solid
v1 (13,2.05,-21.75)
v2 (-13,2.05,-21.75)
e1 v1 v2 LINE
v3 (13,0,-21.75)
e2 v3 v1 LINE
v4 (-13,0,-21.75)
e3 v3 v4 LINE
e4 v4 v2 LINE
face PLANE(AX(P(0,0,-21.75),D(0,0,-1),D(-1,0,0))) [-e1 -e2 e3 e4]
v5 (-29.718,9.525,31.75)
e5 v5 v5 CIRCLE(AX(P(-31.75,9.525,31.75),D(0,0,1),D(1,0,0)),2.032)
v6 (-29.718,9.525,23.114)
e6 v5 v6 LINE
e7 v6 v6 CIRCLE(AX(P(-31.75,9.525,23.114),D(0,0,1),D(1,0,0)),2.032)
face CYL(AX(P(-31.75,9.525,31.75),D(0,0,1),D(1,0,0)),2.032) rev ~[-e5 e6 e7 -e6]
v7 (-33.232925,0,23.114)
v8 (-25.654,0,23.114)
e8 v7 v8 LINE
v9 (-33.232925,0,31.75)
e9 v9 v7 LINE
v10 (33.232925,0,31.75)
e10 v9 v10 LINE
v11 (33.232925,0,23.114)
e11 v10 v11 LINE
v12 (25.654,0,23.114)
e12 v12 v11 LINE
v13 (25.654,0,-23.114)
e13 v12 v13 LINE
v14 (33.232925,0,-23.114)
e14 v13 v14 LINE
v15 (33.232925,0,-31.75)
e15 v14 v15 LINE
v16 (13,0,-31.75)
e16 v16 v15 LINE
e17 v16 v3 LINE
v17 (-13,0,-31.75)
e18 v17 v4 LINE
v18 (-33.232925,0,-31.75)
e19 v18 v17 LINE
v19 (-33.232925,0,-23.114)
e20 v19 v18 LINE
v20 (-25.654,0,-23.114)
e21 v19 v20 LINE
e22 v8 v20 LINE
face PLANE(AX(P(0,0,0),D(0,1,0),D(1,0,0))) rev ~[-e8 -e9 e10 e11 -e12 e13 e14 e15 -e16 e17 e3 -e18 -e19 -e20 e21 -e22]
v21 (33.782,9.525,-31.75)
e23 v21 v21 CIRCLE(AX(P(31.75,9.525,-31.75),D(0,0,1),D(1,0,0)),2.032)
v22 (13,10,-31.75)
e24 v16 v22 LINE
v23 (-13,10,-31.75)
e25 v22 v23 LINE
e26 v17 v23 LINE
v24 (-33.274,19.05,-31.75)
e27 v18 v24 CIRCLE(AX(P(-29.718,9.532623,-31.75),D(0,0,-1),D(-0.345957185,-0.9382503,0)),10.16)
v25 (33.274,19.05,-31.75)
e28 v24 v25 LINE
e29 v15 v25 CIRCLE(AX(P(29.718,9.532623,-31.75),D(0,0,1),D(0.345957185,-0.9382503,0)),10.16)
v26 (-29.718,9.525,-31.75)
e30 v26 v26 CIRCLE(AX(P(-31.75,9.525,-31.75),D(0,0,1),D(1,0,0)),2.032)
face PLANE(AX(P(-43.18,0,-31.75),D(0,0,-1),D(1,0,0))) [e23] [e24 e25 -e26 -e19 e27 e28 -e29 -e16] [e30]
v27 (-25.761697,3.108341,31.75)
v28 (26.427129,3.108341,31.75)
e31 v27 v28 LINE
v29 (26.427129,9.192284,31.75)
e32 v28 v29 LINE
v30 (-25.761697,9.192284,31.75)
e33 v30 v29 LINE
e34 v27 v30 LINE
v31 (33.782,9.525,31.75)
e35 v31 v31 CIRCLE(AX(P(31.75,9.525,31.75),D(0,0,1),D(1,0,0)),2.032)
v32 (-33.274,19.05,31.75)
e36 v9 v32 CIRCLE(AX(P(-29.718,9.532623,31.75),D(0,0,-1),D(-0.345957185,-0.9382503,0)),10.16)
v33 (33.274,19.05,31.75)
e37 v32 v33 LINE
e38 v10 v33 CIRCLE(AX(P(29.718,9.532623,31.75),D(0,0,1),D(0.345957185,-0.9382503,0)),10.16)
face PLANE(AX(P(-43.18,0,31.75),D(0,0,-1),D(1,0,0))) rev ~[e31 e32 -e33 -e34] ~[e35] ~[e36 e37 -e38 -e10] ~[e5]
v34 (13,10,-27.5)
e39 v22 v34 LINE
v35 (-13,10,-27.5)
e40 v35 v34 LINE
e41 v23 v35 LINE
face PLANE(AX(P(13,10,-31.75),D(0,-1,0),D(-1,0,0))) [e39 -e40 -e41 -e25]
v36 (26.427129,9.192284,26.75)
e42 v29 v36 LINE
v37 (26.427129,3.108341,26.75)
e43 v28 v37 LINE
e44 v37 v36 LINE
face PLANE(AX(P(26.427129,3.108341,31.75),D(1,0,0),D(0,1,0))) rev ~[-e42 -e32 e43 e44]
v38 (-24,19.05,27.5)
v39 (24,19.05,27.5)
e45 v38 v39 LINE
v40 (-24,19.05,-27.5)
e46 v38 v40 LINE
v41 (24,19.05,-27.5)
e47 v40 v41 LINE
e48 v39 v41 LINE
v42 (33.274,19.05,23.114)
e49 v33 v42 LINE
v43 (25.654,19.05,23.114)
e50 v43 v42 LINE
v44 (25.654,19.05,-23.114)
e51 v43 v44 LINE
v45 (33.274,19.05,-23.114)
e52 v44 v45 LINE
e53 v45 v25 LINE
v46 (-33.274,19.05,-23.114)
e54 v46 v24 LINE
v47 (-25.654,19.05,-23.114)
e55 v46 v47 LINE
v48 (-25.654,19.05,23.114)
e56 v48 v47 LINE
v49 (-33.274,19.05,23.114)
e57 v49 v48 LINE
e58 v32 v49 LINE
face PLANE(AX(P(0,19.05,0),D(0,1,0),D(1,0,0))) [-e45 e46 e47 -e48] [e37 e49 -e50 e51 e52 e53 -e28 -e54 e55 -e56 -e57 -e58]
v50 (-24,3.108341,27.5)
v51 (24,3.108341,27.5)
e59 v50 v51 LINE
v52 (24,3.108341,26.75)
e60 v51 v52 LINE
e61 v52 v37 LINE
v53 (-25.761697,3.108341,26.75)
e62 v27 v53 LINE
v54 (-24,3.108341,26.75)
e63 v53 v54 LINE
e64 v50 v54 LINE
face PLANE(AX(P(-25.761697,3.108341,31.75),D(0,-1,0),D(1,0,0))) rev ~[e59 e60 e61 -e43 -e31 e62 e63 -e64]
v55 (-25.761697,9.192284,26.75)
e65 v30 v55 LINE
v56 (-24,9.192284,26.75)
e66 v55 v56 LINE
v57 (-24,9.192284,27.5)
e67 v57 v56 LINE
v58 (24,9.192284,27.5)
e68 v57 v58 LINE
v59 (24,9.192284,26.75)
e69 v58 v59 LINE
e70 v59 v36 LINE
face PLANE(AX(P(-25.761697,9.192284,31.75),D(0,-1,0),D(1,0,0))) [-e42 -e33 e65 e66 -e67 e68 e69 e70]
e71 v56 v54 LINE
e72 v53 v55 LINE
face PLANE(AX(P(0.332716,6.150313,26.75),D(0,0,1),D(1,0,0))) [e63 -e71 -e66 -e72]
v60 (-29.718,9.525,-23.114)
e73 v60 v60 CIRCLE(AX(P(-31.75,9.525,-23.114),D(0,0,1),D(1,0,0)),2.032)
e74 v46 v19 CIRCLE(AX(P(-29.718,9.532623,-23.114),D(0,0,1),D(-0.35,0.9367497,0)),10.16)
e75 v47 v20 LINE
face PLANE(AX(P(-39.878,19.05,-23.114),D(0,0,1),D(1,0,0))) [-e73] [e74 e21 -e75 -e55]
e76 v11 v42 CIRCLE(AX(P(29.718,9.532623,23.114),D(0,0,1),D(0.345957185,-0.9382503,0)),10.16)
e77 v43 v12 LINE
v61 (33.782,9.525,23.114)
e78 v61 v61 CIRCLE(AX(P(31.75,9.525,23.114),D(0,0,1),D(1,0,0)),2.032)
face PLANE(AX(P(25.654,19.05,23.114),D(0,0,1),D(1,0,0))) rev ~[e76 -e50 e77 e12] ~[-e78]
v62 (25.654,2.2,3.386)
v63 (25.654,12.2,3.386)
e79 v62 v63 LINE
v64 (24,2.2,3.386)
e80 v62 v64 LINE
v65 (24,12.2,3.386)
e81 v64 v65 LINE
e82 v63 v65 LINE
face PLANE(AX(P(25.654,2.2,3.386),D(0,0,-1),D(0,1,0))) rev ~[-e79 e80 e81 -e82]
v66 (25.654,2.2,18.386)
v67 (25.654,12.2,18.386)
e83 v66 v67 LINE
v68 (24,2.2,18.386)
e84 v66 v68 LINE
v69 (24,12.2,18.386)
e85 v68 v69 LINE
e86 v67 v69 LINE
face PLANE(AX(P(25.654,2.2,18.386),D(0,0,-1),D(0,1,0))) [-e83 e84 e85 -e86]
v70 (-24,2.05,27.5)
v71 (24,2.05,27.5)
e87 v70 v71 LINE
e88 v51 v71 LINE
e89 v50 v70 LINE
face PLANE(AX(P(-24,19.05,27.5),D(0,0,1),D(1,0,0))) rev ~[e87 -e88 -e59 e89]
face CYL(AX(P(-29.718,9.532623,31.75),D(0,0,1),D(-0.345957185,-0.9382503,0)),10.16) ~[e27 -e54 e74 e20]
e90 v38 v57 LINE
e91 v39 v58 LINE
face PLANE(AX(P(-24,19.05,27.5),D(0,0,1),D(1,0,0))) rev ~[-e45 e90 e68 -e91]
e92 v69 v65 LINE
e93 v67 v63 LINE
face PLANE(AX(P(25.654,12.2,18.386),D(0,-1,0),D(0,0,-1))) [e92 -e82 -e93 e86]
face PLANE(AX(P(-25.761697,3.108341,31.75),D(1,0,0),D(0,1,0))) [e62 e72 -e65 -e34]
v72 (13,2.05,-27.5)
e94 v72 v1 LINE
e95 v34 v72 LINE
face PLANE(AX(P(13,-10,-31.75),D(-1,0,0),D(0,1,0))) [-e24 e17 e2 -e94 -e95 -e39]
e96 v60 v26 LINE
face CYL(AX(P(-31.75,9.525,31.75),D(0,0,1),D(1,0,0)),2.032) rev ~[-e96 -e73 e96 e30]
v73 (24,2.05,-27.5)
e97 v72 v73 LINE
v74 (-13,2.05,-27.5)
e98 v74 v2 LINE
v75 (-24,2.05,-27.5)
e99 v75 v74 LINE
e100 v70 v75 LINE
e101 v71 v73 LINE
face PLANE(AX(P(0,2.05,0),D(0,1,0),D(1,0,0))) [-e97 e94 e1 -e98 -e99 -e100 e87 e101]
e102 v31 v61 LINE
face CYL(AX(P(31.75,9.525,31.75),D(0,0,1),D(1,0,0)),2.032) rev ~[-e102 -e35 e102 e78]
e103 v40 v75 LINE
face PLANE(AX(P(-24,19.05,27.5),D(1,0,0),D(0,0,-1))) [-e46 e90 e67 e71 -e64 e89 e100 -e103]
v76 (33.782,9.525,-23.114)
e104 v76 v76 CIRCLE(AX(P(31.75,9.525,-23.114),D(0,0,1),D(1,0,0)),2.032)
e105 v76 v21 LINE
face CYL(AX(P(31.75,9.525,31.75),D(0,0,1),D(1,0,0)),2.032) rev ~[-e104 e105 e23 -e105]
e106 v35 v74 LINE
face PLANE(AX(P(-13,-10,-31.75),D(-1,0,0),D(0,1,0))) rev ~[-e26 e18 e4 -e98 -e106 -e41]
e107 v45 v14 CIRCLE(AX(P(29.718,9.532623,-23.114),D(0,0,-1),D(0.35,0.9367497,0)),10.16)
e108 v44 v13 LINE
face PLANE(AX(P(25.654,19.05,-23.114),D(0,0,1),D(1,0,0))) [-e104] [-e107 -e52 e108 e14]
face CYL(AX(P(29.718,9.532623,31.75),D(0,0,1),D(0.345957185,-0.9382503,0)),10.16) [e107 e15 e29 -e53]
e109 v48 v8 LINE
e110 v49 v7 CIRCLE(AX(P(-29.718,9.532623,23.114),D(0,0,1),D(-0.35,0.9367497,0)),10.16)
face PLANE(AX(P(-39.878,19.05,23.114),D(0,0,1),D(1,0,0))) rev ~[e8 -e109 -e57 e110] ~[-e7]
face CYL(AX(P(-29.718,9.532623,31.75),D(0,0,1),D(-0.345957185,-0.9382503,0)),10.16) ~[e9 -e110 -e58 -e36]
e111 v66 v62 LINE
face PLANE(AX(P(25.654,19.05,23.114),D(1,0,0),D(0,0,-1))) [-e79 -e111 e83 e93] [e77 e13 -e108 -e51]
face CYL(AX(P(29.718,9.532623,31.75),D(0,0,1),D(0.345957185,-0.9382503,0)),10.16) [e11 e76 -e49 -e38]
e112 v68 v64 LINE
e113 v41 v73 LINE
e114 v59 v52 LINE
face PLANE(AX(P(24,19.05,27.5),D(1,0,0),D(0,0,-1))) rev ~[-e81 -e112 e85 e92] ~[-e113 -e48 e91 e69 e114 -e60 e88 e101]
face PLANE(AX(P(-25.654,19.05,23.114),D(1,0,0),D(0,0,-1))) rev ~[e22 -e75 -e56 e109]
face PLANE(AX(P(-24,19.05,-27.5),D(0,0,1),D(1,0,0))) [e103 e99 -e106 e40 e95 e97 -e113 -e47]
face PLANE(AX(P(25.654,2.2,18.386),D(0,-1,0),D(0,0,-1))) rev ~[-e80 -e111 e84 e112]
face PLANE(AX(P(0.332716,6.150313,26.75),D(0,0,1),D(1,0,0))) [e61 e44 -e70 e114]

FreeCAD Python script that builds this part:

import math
import FreeCAD as App
import Part
import Sketcher
Q = App.Units.Quantity

doc = App.newDocument("Part")
body = doc.addObject("PartDesign::Body", "Body")

# Sketch on XZ plane
sketch1 = body.newObject("Sketcher::SketchObject", "Sketch")
sketch1.AttachmentSupport = (doc.getObject("XZ_Plane"), [""])
sketch1.MapMode = "FlatFace"
sketch1.addGeometry([
    Part.LineSegment(App.Vector(-43.18, -31.75, 0), App.Vector(-43.18, 31.75, 0)),
    Part.LineSegment(App.Vector(-43.18, 31.75, 0), App.Vector(43.18, 31.75, 0)),
    Part.LineSegment(App.Vector(43.18, 31.75, 0), App.Vector(43.18, -31.75, 0)),
    Part.LineSegment(App.Vector(43.18, -31.75, 0), App.Vector(-43.18, -31.75, 0)),
], False)
sketch1.addConstraint([
    Sketcher.Constraint("Coincident", 0, 2, 1, 1),
    Sketcher.Constraint("Coincident", 1, 2, 2, 1),
    Sketcher.Constraint("Coincident", 2, 2, 3, 1),
    Sketcher.Constraint("Coincident", 3, 2, 0, 1),
    Sketcher.Constraint("Vertical", 0),
    Sketcher.Constraint("Horizontal", 1),
    Sketcher.Constraint("Vertical", 2),
    Sketcher.Constraint("Horizontal", 3),
    Sketcher.Constraint("Symmetric", 0, 2, 2, 2, -1, 1),
    Sketcher.Constraint("DistanceY", 0, 1, 0, 2, Q("63.5 mm")),
    Sketcher.Constraint("DistanceX", 1, 1, 1, 2, Q("86.36 mm")),
])
pad1 = body.newObject("PartDesign::Pad", "Pad")
pad1.Profile = sketch1
pad1.Length = 19.05
pad1.Reversed = True

# Sketch on XY plane
sketch2 = body.newObject("Sketcher::SketchObject", "Sketch001")
sketch2.AttachmentSupport = (doc.getObject("XY_Plane"), [""])
sketch2.MapMode = "FlatFace"
sketch2.AttachmentOffset = App.Placement(App.Vector(0, 0, 31.75), App.Rotation())
sketch2.addGeometry([
    Part.LineSegment(App.Vector(-43.18, 19.05, 0), App.Vector(-43.18, 0, 0)),  # 0
    Part.LineSegment(App.Vector(-43.18, 0, 0), App.Vector(-33.232925, 0, 0)),  # 1
    Part.ArcOfCircle(Part.Circle(App.Vector(-29.718, 9.532623, 0), App.Vector(0, 0, 1), 10.16), math.radians(110.487315), math.radians(249.759763)),  # 2
    Part.LineSegment(App.Vector(-33.274, 19.05, 0), App.Vector(-43.18, 19.05, 0)),  # 3
    Part.LineSegment(App.Vector(43.18, 0, 0), App.Vector(43.18, 19.05, 0)),  # 4
    Part.LineSegment(App.Vector(43.18, 19.05, 0), App.Vector(33.274, 19.05, 0)),  # 5
    Part.ArcOfCircle(Part.Circle(App.Vector(29.718, 9.532623, 0), App.Vector(0, 0, 1), 10.16), math.radians(-69.759763), math.radians(69.512685)),  # 6
    Part.LineSegment(App.Vector(33.232925, 0, 0), App.Vector(43.18, 0, 0)),  # 7
], False)
sketch2.addConstraint([
    Sketcher.Constraint("Coincident", 0, 2, 1, 1),
    Sketcher.Constraint("Coincident", 1, 2, 2, 2),
    Sketcher.Constraint("Coincident", 2, 1, 3, 1),
    Sketcher.Constraint("Coincident", 3, 2, 0, 1),
    Sketcher.Constraint("Coincident", 4, 2, 5, 1),
    Sketcher.Constraint("Coincident", 5, 2, 6, 2),
    Sketcher.Constraint("Coincident", 6, 1, 7, 1),
    Sketcher.Constraint("Coincident", 7, 2, 4, 1),
    Sketcher.Constraint("Vertical", 0),
    Sketcher.Constraint("Horizontal", 1),
    Sketcher.Constraint("Horizontal", 3),
    Sketcher.Constraint("Vertical", 4),
    Sketcher.Constraint("Horizontal", 5),
    Sketcher.Constraint("Horizontal", 7),
    Sketcher.Constraint("Equal", 2, 6),
    Sketcher.Constraint("Symmetric", 1, 2, 6, 1, -1, 1),
    Sketcher.Constraint("Symmetric", 2, 3, 6, 3, -2),
    Sketcher.Constraint("Symmetric", 3, 2, 4, 2, -2),
    Sketcher.Constraint("Radius", 2, Q("10.16 mm")),
    Sketcher.Constraint("DistanceY", 0, 2, 0, 1, Q("19.05 mm")),
    Sketcher.Constraint("DistanceX", 3, 2, 3, 1, Q("9.906 mm")),
    Sketcher.Constraint("DistanceX", 0, 2, -1, 1, Q("43.18 mm")),
    Sketcher.Constraint("DistanceX", 2, 3, -1, 1, Q("29.718 mm")),
])
pocket1 = body.newObject("PartDesign::Pocket", "Pocket")
pocket1.Profile = sketch2
pocket1.Length = 63.5

# Sketch on XZ plane
sketch3 = body.newObject("Sketcher::SketchObject", "Sketch002")
sketch3.AttachmentSupport = (doc.getObject("XZ_Plane"), [""])
sketch3.MapMode = "FlatFace"
sketch3.AttachmentOffset = App.Placement(App.Vector(0, 0, -19.05), App.Rotation())
sketch3.addGeometry([
    Part.LineSegment(App.Vector(-39.878, -23.114, 0), App.Vector(-39.878, 23.114, 0)),  # 0
    Part.LineSegment(App.Vector(-39.878, 23.114, 0), App.Vector(-25.654, 23.114, 0)),  # 1
    Part.LineSegment(App.Vector(-25.654, 23.114, 0), App.Vector(-25.654, -23.114, 0)),  # 2
    Part.LineSegment(App.Vector(-25.654, -23.114, 0), App.Vector(-39.878, -23.114, 0)),  # 3
    Part.LineSegment(App.Vector(25.654, -23.114, 0), App.Vector(25.654, 23.114, 0)),  # 4
    Part.LineSegment(App.Vector(25.654, 23.114, 0), App.Vector(39.878, 23.114, 0)),  # 5
    Part.LineSegment(App.Vector(39.878, 23.114, 0), App.Vector(39.878, -23.114, 0)),  # 6
    Part.LineSegment(App.Vector(39.878, -23.114, 0), App.Vector(25.654, -23.114, 0)),  # 7
], False)
sketch3.addConstraint([
    Sketcher.Constraint("Coincident", 0, 2, 1, 1),
    Sketcher.Constraint("Coincident", 1, 2, 2, 1),
    Sketcher.Constraint("Coincident", 2, 2, 3, 1),
    Sketcher.Constraint("Coincident", 3, 2, 0, 1),
    Sketcher.Constraint("Coincident", 4, 2, 5, 1),
    Sketcher.Constraint("Coincident", 5, 2, 6, 1),
    Sketcher.Constraint("Coincident", 6, 2, 7, 1),
    Sketcher.Constraint("Coincident", 7, 2, 4, 1),
    Sketcher.Constraint("Vertical", 0),
    Sketcher.Constraint("Horizontal", 1),
    Sketcher.Constraint("Vertical", 2),
    Sketcher.Constraint("Horizontal", 3),
    Sketcher.Constraint("Vertical", 4),
    Sketcher.Constraint("Horizontal", 5),
    Sketcher.Constraint("Vertical", 6),
    Sketcher.Constraint("Horizontal", 7),
    Sketcher.Constraint("Symmetric", 2, 2, 4, 2, -1, 1),
    Sketcher.Constraint("Symmetric", 0, 2, 6, 2, -1, 1),
    Sketcher.Constraint("Horizontal", 1, 2, 4, 2),
    Sketcher.Constraint("DistanceX", 1, 1, 1, 2, Q("14.224 mm")),
    Sketcher.Constraint("DistanceY", 0, 1, 0, 2, Q("46.228 mm")),
    Sketcher.Constraint("DistanceX", 0, 2, -1, 1, Q("39.878 mm")),
])
pocket2 = body.newObject("PartDesign::Pocket", "Pocket001")
pocket2.Profile = sketch3
pocket2.Length = 63.5
pocket2.Reversed = True

# Sketch on XY plane
sketch4 = body.newObject("Sketcher::SketchObject", "Sketch003")
sketch4.AttachmentSupport = (doc.getObject("XY_Plane"), [""])
sketch4.MapMode = "FlatFace"
sketch4.AttachmentOffset = App.Placement(App.Vector(0, 0, 31.75), App.Rotation())
sketch4.addGeometry([
    Part.Circle(App.Vector(-31.75, 9.525, 0), App.Vector(0, 0, 1), 2.032),
    Part.Circle(App.Vector(31.75, 9.525, 0), App.Vector(0, 0, 1), 2.032),
], False)
sketch4.addConstraint([
    Sketcher.Constraint("Equal", 0, 1),
    Sketcher.Constraint("Symmetric", 0, 3, 1, 3, -2),
    Sketcher.Constraint("Diameter", 0, Q("4.064 mm")),
    Sketcher.Constraint("DistanceX", 0, 3, 1, 3, Q("63.5 mm")),
    Sketcher.Constraint("DistanceY", -1, 1, 0, 3, Q("9.525 mm")),
])
pocket3 = body.newObject("PartDesign::Pocket", "Pocket002")
pocket3.Profile = sketch4
pocket3.Length = 63.5

# Sketch on XZ plane
sketch5 = body.newObject("Sketcher::SketchObject", "Sketch004")
sketch5.AttachmentSupport = (doc.getObject("XZ_Plane"), [""])
sketch5.MapMode = "FlatFace"
sketch5.AttachmentOffset = App.Placement(App.Vector(0, 0, -19.05), App.Rotation())
sketch5.addGeometry([
    Part.LineSegment(App.Vector(-24, -27.5, 0), App.Vector(-24, 27.5, 0)),
    Part.LineSegment(App.Vector(-24, 27.5, 0), App.Vector(24, 27.5, 0)),
    Part.LineSegment(App.Vector(24, 27.5, 0), App.Vector(24, -27.5, 0)),
    Part.LineSegment(App.Vector(24, -27.5, 0), App.Vector(-24, -27.5, 0)),
], False)
sketch5.addConstraint([
    Sketcher.Constraint("Coincident", 0, 2, 1, 1),
    Sketcher.Constraint("Coincident", 1, 2, 2, 1),
    Sketcher.Constraint("Coincident", 2, 2, 3, 1),
    Sketcher.Constraint("Coincident", 3, 2, 0, 1),
    Sketcher.Constraint("Vertical", 0),
    Sketcher.Constraint("Horizontal", 1),
    Sketcher.Constraint("Vertical", 2),
    Sketcher.Constraint("Horizontal", 3),
    Sketcher.Constraint("Symmetric", 0, 2, 2, 2, -1, 1),
    Sketcher.Constraint("DistanceX", 1, 1, 1, 2, Q("48 mm")),
    Sketcher.Constraint("DistanceY", 0, 1, 0, 2, Q("55 mm")),
])
pocket4 = body.newObject("PartDesign::Pocket", "Pocket003")
pocket4.Profile = sketch5
pocket4.Length = 17
pocket4.Reversed = True

# Sketch on YZ plane
sketch6 = body.newObject("Sketcher::SketchObject", "Sketch005")
sketch6.AttachmentSupport = (doc.getObject("YZ_Plane"), [""])
sketch6.MapMode = "FlatFace"
sketch6.AttachmentOffset = App.Placement(App.Vector(0, 0, 25.654), App.Rotation())
sketch6.addGeometry([
    Part.LineSegment(App.Vector(12.2, 18.386, 0), App.Vector(2.2, 18.386, 0)),
    Part.LineSegment(App.Vector(2.2, 18.386, 0), App.Vector(2.2, 3.386, 0)),
    Part.LineSegment(App.Vector(2.2, 3.386, 0), App.Vector(12.2, 3.386, 0)),
    Part.LineSegment(App.Vector(12.2, 3.386, 0), App.Vector(12.2, 18.386, 0)),
], False)
sketch6.addConstraint([
    Sketcher.Constraint("Coincident", 0, 2, 1, 1),
    Sketcher.Constraint("Coincident", 1, 2, 2, 1),
    Sketcher.Constraint("Coincident", 2, 2, 3, 1),
    Sketcher.Constraint("Coincident", 3, 2, 0, 1),
    Sketcher.Constraint("Horizontal", 0),
    Sketcher.Constraint("Vertical", 1),
    Sketcher.Constraint("Horizontal", 2),
    Sketcher.Constraint("Vertical", 3),
    Sketcher.Constraint("DistanceX", 0, 2, 0, 1, Q("10 mm")),
    Sketcher.Constraint("DistanceY", 1, 2, 1, 1, Q("15 mm")),
    Sketcher.Constraint("DistanceX", -1, 1, 0, 2, Q("2.2 mm")),
    Sketcher.Constraint("DistanceY", -1, 1, 0, 2, Q("18.386 mm")),
])
pocket5 = body.newObject("PartDesign::Pocket", "Pocket004")
pocket5.Profile = sketch6
pocket5.Length = 17

# Sketch on XY plane
sketch7 = body.newObject("Sketcher::SketchObject", "Sketch006")
sketch7.AttachmentSupport = (doc.getObject("XY_Plane"), [""])
sketch7.MapMode = "FlatFace"
sketch7.AttachmentOffset = App.Placement(App.Vector(0, 0, -31.75), App.Rotation())
sketch7.addGeometry([
    Part.LineSegment(App.Vector(13, 10, 0), App.Vector(13, -10, 0)),
    Part.LineSegment(App.Vector(13, -10, 0), App.Vector(-13, -10, 0)),
    Part.LineSegment(App.Vector(-13, -10, 0), App.Vector(-13, 10, 0)),
    Part.LineSegment(App.Vector(-13, 10, 0), App.Vector(13, 10, 0)),
], False)
sketch7.addConstraint([
    Sketcher.Constraint("Coincident", 0, 2, 1, 1),
    Sketcher.Constraint("Coincident", 1, 2, 2, 1),
    Sketcher.Constraint("Coincident", 2, 2, 3, 1),
    Sketcher.Constraint("Coincident", 3, 2, 0, 1),
    Sketcher.Constraint("Vertical", 0),
    Sketcher.Constraint("Horizontal", 1),
    Sketcher.Constraint("Vertical", 2),
    Sketcher.Constraint("Horizontal", 3),
    Sketcher.Constraint("Symmetric", 0, 2, 2, 2, -1, 1),
    Sketcher.Constraint("DistanceX", 1, 2, 1, 1, Q("26 mm")),
    Sketcher.Constraint("DistanceY", 0, 2, 0, 1, Q("20 mm")),
])
pocket6 = body.newObject("PartDesign::Pocket", "Pocket005")
pocket6.Profile = sketch7
pocket6.Length = 10
pocket6.Reversed = True

# Sketch on XY plane
sketch8 = body.newObject("Sketcher::SketchObject", "Sketch007")
sketch8.AttachmentSupport = (doc.getObject("XY_Plane"), [""])
sketch8.MapMode = "FlatFace"
sketch8.AttachmentOffset = App.Placement(App.Vector(0, 0, 31.75), App.Rotation())
sketch8.addGeometry([
    Part.LineSegment(App.Vector(-25.761697, 9.192284, 0), App.Vector(-25.761697, 3.108341, 0)),
    Part.LineSegment(App.Vector(-25.761697, 3.108341, 0), App.Vector(26.427129, 3.108341, 0)),
    Part.LineSegment(App.Vector(26.427129, 3.108341, 0), App.Vector(26.427129, 9.192284, 0)),
    Part.LineSegment(App.Vector(26.427129, 9.192284, 0), App.Vector(-25.761697, 9.192284, 0)),
], False)
sketch8.addConstraint([
    Sketcher.Constraint("Coincident", 0, 2, 1, 1),
    Sketcher.Constraint("Coincident", 1, 2, 2, 1),
    Sketcher.Constraint("Coincident", 2, 2, 3, 1),
    Sketcher.Constraint("Coincident", 3, 2, 0, 1),
    Sketcher.Constraint("Vertical", 0),
    Sketcher.Constraint("Horizontal", 1),
    Sketcher.Constraint("Vertical", 2),
    Sketcher.Constraint("Horizontal", 3),
    Sketcher.Constraint("DistanceX", 1, 1, 1, 2, Q("52.188826 mm")),
    Sketcher.Constraint("DistanceY", 0, 2, 0, 1, Q("6.083943 mm")),
    Sketcher.Constraint("DistanceY", -1, 1, 0, 2, Q("3.108341 mm")),
    Sketcher.Constraint("DistanceX", -1, 1, 1, 2, Q("26.427129 mm")),
])
pocket7 = body.newObject("PartDesign::Pocket", "Pocket006")
pocket7.Profile = sketch8
pocket7.Length = 5

doc.recompute()
